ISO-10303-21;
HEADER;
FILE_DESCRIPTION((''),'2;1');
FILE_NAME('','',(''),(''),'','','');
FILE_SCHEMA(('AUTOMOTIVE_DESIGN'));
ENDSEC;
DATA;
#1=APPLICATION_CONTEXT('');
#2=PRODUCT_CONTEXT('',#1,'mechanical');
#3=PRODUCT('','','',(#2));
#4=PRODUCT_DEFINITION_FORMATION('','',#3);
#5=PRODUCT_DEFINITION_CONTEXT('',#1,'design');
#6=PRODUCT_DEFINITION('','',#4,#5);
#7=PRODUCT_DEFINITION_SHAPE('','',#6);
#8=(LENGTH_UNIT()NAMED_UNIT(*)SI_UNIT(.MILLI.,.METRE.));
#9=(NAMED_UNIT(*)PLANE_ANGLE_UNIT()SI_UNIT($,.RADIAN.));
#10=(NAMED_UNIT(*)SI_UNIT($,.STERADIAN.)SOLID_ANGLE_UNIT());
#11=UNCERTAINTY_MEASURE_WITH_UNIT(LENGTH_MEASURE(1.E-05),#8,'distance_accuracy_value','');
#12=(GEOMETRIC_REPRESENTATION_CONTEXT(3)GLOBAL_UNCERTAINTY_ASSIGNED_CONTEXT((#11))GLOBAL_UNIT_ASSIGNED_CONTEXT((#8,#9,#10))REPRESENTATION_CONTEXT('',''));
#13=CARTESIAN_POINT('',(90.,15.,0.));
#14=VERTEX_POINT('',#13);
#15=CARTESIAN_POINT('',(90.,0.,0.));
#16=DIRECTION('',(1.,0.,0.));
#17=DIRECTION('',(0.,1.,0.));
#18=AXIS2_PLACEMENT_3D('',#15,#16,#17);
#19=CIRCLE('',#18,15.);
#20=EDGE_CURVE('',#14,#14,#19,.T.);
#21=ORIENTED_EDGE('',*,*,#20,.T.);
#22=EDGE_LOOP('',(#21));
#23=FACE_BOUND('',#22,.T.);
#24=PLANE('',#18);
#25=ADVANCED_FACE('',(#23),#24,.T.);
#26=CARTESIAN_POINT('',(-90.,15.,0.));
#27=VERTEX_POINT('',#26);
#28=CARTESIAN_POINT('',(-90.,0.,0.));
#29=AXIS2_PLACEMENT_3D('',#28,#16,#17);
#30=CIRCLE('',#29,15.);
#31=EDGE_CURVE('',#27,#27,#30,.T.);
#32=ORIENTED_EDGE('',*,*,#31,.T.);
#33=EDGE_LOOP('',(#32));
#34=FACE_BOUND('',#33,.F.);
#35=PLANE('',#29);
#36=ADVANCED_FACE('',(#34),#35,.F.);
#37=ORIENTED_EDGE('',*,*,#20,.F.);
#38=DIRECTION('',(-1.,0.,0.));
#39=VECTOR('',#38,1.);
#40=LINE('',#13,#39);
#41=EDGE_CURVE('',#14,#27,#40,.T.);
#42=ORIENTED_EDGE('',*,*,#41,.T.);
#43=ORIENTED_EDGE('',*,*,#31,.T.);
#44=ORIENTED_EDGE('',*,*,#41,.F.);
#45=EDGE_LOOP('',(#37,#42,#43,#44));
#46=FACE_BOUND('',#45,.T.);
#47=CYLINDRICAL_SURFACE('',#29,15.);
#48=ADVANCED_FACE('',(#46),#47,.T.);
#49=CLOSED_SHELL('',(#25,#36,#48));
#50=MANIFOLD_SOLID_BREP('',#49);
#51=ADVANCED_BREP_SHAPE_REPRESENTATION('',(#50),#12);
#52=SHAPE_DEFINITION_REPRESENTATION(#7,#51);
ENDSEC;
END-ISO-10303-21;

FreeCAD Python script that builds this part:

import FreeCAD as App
import Part
import Sketcher

V = App.Vector
Q = App.Units.Quantity


def add_polygon(sketch, points):
    """Adds a closed chain of lines whose ends are joined by coincident constraints."""
    first, n = sketch.GeometryCount, len(points)
    for a, b in zip(points, points[1:] + points[:1]):
        sketch.addGeometry(Part.LineSegment(App.Vector(*a, 0), App.Vector(*b, 0)), False)
    for i in range(n):
        sketch.addConstraint(Sketcher.Constraint("Coincident", first + i, 2, first + (i + 1) % n, 1))

doc = App.newDocument("Part")
params = doc.addObject("Spreadsheet::Sheet", "Params")
for row, (alias, value) in enumerate([
    ("sketch1_width", "180 mm"),
    ("sketch1_height", "15 mm"),
    ("revolution_angle", "360 deg"),
], start=1):
    params.set(f"A{row}", alias)
    params.set(f"B{row}", "=" + value)
    params.setAlias(f"B{row}", alias)

body = doc.addObject("PartDesign::Body", "Body")

# Sketch on XY plane
sketch1 = body.newObject("Sketcher::SketchObject", "Sketch")
sketch1.AttachmentSupport = (doc.getObject("XY_Plane"), [""])
sketch1.MapMode = "FlatFace"
add_polygon(sketch1, [(90, 0), (90, 15), (-90, 15), (-90, 0)])  # lines 0-3
sketch1.addConstraint([
    Sketcher.Constraint("Vertical", 0),
    Sketcher.Constraint("Horizontal", 1),
    Sketcher.Constraint("Vertical", 2),
    Sketcher.Constraint("Horizontal", 3),
    Sketcher.Constraint("Symmetric", 2, 2, 3, 2, -1, 1),
    Sketcher.Constraint("DistanceX", 1, 2, 1, 1, Q("180 mm")),
    Sketcher.Constraint("DistanceY", 0, 1, 0, 2, Q("15 mm")),
])
sketch1.setExpression("Constraints[9]", "Params.sketch1_width")
sketch1.setExpression("Constraints[10]", "Params.sketch1_height")
revolution = body.newObject("PartDesign::Revolution", "Revolution")
revolution.Profile = sketch1
revolution.ReferenceAxis = (sketch1, ["H_Axis"])
revolution.setExpression("Angle", "Params.revolution_angle")

doc.recompute()
